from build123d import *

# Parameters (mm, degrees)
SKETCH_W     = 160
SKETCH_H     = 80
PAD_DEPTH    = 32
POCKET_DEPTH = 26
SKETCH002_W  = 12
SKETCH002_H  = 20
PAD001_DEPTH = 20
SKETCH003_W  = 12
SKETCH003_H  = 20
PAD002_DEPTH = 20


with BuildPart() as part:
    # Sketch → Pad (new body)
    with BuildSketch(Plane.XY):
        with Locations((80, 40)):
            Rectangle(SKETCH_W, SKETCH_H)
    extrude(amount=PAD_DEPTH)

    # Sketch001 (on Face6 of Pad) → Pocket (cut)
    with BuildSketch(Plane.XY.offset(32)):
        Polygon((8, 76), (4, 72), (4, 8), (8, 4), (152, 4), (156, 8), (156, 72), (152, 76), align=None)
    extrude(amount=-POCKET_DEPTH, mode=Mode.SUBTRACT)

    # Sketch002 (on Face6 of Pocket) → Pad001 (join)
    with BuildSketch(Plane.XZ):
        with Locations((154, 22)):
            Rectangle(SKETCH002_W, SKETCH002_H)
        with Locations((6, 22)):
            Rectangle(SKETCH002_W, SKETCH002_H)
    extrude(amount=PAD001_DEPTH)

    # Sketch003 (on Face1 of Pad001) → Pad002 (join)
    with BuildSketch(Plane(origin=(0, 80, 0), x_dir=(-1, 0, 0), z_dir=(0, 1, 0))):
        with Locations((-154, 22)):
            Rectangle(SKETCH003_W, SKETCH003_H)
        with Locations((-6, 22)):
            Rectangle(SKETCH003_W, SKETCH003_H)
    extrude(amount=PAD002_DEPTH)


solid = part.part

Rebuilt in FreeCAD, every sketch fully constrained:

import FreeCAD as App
import Part
import Sketcher
from FreeCAD import Vector


def add_polygon(sketch, points):
    """Adds a closed chain of lines whose ends are joined by coincident constraints."""
    first, n = sketch.GeometryCount, len(points)
    for a, b in zip(points, points[1:] + points[:1]):
        sketch.addGeometry(Part.LineSegment(App.Vector(*a, 0), App.Vector(*b, 0)), False)
    for i in range(n):
        sketch.addConstraint(Sketcher.Constraint("Coincident", first + i, 2, first + (i + 1) % n, 1))

doc = App.newDocument("Part")
body = doc.addObject("PartDesign::Body", "Body")

sketch1 = doc.addObject("Sketcher::SketchObject", "Sketch")
body.addObject(sketch1)
sketch1.AttachmentSupport = (doc.XY_Plane, [""])
sketch1.MapMode = "FlatFace"
add_polygon(sketch1, [(0, 80), (0, 0), (160, 0), (160, 80)])
sketch1.addConstraint([
    Sketcher.Constraint("Vertical", 0),
    Sketcher.Constraint("Horizontal", 1),
    Sketcher.Constraint("Vertical", 2),
    Sketcher.Constraint("Horizontal", 3),
    Sketcher.Constraint("Coincident", 0, 2, -1, 1),
    Sketcher.Constraint("DistanceX", 1, 1, 1, 2, 160.0),
    Sketcher.Constraint("DistanceY", 0, 2, 0, 1, 80.0),
])
pad1 = doc.addObject("PartDesign::Pad", "Pad")
body.addObject(pad1)
pad1.Profile = sketch1
pad1.Length = 32

sketch2 = doc.addObject("Sketcher::SketchObject", "Sketch001")
body.addObject(sketch2)
sketch2.AttachmentSupport = (doc.XY_Plane, [""])
sketch2.MapMode = "FlatFace"
sketch2.AttachmentOffset = App.Placement(Vector(0, 0, 32), App.Rotation())
add_polygon(sketch2, [(8, 76), (4, 72), (4, 8), (8, 4), (152, 4), (156, 8), (156, 72), (152, 76)])
sketch2.addConstraint([
    Sketcher.Constraint("Vertical", 1),
    Sketcher.Constraint("Horizontal", 3),
    Sketcher.Constraint("Vertical", 5),
    Sketcher.Constraint("Horizontal", 7),
    Sketcher.Constraint("Perpendicular", 0, 2),
    Sketcher.Constraint("Perpendicular", 2, 4),
    Sketcher.Constraint("Perpendicular", 4, 6),
    Sketcher.Constraint("Horizontal", 1, 2, 4, 2),
    Sketcher.Constraint("Horizontal", 0, 2, 5, 2),
    Sketcher.Constraint("Vertical", 3, 2, 6, 2),
    Sketcher.Constraint("Vertical", 2, 2, 7, 2),
    Sketcher.Constraint("DistanceX", 3, 1, 3, 2, 144.0),
    Sketcher.Constraint("DistanceY", 1, 2, 1, 1, 64.0),
    Sketcher.Constraint("DistanceX", -1, 1, 0, 2, 4.0),
    Sketcher.Constraint("DistanceY", -1, 1, 0, 2, 72.0),
    Sketcher.Constraint("DistanceX", -1, 1, 2, 2, 8.0),
])
pocket1 = doc.addObject("PartDesign::Pocket", "Pocket")
body.addObject(pocket1)
pocket1.Profile = sketch2
pocket1.Length = 26

sketch3 = doc.addObject("Sketcher::SketchObject", "Sketch002")
body.addObject(sketch3)
sketch3.AttachmentSupport = (doc.XZ_Plane, [""])
sketch3.MapMode = "FlatFace"
add_polygon(sketch3, [(148, 32), (148, 12), (160, 12), (160, 32)])
add_polygon(sketch3, [(0, 32), (0, 12), (12, 12), (12, 32)])
sketch3.addConstraint([
    Sketcher.Constraint("Vertical", 0),
    Sketcher.Constraint("Horizontal", 1),
    Sketcher.Constraint("Vertical", 2),
    Sketcher.Constraint("Horizontal", 3),
    Sketcher.Constraint("Vertical", 4),
    Sketcher.Constraint("Horizontal", 5),
    Sketcher.Constraint("Vertical", 6),
    Sketcher.Constraint("Horizontal", 7),
    Sketcher.Constraint("PointOnObject", 4, 2, -2),
    Sketcher.Constraint("Horizontal", 1, 2, 4, 2),
    Sketcher.Constraint("Horizontal", 3, 2, 6, 2),
    Sketcher.Constraint("Equal", 3, 5),
    Sketcher.Constraint("DistanceX", 1, 1, 1, 2, 12.0),
    Sketcher.Constraint("DistanceY", 0, 2, 0, 1, 20.0),
    Sketcher.Constraint("DistanceX", -1, 1, 0, 2, 148.0),
    Sketcher.Constraint("DistanceY", -1, 1, 0, 2, 12.0),
])
pad2 = doc.addObject("PartDesign::Pad", "Pad001")
body.addObject(pad2)
pad2.Profile = sketch3
pad2.Length = 20

sketch4 = doc.addObject("Sketcher::SketchObject", "Sketch003")
body.addObject(sketch4)
sketch4.AttachmentSupport = (doc.XZ_Plane, [""])
sketch4.MapMode = "FlatFace"
sketch4.AttachmentOffset = App.Placement(Vector(0, 0, -80), App.Rotation())
add_polygon(sketch4, [(160, 32), (160, 12), (148, 12), (148, 32)])
add_polygon(sketch4, [(12, 32), (12, 12), (0, 12), (0, 32)])
sketch4.addConstraint([
    Sketcher.Constraint("Vertical", 0),
    Sketcher.Constraint("Horizontal", 1),
    Sketcher.Constraint("Vertical", 2),
    Sketcher.Constraint("Horizontal", 3),
    Sketcher.Constraint("Vertical", 4),
    Sketcher.Constraint("Horizontal", 5),
    Sketcher.Constraint("Vertical", 6),
    Sketcher.Constraint("Horizontal", 7),
    Sketcher.Constraint("PointOnObject", 5, 2, -2),
    Sketcher.Constraint("Horizontal", 1, 2, 4, 2),
    Sketcher.Constraint("Horizontal", 3, 2, 6, 2),
    Sketcher.Constraint("Equal", 3, 5),
    Sketcher.Constraint("DistanceX", 1, 2, 1, 1, 12.0),
    Sketcher.Constraint("DistanceY", 0, 2, 0, 1, 20.0),
    Sketcher.Constraint("DistanceX", -1, 1, 0, 2, 160.0),
    Sketcher.Constraint("DistanceY", -1, 1, 0, 2, 12.0),
])
pad3 = doc.addObject("PartDesign::Pad", "Pad002")
body.addObject(pad3)
pad3.Profile = sketch4
pad3.Length = 20
pad3.Reversed = True

doc.recompute()
